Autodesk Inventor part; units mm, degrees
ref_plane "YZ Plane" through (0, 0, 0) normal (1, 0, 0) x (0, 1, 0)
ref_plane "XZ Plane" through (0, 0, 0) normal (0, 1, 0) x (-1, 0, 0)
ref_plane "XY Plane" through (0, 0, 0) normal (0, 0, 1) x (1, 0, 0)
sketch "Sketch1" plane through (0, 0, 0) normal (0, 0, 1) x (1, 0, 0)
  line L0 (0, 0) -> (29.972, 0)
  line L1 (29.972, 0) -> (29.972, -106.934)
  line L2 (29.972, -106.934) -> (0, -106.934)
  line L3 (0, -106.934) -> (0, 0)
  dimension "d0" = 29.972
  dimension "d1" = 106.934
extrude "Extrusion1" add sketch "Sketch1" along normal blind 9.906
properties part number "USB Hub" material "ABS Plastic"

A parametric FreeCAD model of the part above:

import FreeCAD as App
import Part
import Sketcher
from FreeCAD import Vector
Q = App.Units.Quantity

doc = App.newDocument("Part")
params = doc.addObject("Spreadsheet::Sheet", "Params")
for row, (alias, value) in enumerate([
    ("sketch1_width", "1.18 in"),
    ("sketch1_height", "4.21 in"),
    ("pad1_length", "0.39 in"),
], start=1):
    params.set(f"A{row}", alias)
    params.set(f"B{row}", "=" + value)
    params.setAlias(f"B{row}", alias)

body = doc.addObject("PartDesign::Body", "Body")

# Sketch on XY plane
sketch1 = doc.addObject("Sketcher::SketchObject", "Sketch")
body.addObject(sketch1)
sketch1.AttachmentSupport = (doc.XY_Plane, [""])
sketch1.MapMode = "FlatFace"
sketch1.addGeometry([
    Part.LineSegment(Vector(30, 0, 0), Vector(0, 0, 0)),
    Part.LineSegment(Vector(0, 0, 0), Vector(0, -107, 0)),
    Part.LineSegment(Vector(0, -107, 0), Vector(30, -107, 0)),
    Part.LineSegment(Vector(30, -107, 0), Vector(30, 0, 0)),
], False)
sketch1.addConstraint([
    Sketcher.Constraint("Coincident", 0, 2, 1, 1),
    Sketcher.Constraint("Coincident", 1, 2, 2, 1),
    Sketcher.Constraint("Coincident", 2, 2, 3, 1),
    Sketcher.Constraint("Coincident", 3, 2, 0, 1),
    Sketcher.Constraint("Horizontal", 0),
    Sketcher.Constraint("Vertical", 1),
    Sketcher.Constraint("Horizontal", 2),
    Sketcher.Constraint("Vertical", 3),
    Sketcher.Constraint("Coincident", 0, 2, -1, 1),
    Sketcher.Constraint("DistanceX", 0, 2, 0, 1, Q("1.18 in")),
    Sketcher.Constraint("DistanceY", 1, 2, 1, 1, Q("4.21 in")),
])
sketch1.setExpression("Constraints[9]", "Params.sketch1_width")
sketch1.setExpression("Constraints[10]", "Params.sketch1_height")
pad1 = doc.addObject("PartDesign::Pad", "Pad")
body.addObject(pad1)
pad1.Profile = sketch1
pad1.setExpression("Length", "Params.pad1_length")

doc.recompute()
